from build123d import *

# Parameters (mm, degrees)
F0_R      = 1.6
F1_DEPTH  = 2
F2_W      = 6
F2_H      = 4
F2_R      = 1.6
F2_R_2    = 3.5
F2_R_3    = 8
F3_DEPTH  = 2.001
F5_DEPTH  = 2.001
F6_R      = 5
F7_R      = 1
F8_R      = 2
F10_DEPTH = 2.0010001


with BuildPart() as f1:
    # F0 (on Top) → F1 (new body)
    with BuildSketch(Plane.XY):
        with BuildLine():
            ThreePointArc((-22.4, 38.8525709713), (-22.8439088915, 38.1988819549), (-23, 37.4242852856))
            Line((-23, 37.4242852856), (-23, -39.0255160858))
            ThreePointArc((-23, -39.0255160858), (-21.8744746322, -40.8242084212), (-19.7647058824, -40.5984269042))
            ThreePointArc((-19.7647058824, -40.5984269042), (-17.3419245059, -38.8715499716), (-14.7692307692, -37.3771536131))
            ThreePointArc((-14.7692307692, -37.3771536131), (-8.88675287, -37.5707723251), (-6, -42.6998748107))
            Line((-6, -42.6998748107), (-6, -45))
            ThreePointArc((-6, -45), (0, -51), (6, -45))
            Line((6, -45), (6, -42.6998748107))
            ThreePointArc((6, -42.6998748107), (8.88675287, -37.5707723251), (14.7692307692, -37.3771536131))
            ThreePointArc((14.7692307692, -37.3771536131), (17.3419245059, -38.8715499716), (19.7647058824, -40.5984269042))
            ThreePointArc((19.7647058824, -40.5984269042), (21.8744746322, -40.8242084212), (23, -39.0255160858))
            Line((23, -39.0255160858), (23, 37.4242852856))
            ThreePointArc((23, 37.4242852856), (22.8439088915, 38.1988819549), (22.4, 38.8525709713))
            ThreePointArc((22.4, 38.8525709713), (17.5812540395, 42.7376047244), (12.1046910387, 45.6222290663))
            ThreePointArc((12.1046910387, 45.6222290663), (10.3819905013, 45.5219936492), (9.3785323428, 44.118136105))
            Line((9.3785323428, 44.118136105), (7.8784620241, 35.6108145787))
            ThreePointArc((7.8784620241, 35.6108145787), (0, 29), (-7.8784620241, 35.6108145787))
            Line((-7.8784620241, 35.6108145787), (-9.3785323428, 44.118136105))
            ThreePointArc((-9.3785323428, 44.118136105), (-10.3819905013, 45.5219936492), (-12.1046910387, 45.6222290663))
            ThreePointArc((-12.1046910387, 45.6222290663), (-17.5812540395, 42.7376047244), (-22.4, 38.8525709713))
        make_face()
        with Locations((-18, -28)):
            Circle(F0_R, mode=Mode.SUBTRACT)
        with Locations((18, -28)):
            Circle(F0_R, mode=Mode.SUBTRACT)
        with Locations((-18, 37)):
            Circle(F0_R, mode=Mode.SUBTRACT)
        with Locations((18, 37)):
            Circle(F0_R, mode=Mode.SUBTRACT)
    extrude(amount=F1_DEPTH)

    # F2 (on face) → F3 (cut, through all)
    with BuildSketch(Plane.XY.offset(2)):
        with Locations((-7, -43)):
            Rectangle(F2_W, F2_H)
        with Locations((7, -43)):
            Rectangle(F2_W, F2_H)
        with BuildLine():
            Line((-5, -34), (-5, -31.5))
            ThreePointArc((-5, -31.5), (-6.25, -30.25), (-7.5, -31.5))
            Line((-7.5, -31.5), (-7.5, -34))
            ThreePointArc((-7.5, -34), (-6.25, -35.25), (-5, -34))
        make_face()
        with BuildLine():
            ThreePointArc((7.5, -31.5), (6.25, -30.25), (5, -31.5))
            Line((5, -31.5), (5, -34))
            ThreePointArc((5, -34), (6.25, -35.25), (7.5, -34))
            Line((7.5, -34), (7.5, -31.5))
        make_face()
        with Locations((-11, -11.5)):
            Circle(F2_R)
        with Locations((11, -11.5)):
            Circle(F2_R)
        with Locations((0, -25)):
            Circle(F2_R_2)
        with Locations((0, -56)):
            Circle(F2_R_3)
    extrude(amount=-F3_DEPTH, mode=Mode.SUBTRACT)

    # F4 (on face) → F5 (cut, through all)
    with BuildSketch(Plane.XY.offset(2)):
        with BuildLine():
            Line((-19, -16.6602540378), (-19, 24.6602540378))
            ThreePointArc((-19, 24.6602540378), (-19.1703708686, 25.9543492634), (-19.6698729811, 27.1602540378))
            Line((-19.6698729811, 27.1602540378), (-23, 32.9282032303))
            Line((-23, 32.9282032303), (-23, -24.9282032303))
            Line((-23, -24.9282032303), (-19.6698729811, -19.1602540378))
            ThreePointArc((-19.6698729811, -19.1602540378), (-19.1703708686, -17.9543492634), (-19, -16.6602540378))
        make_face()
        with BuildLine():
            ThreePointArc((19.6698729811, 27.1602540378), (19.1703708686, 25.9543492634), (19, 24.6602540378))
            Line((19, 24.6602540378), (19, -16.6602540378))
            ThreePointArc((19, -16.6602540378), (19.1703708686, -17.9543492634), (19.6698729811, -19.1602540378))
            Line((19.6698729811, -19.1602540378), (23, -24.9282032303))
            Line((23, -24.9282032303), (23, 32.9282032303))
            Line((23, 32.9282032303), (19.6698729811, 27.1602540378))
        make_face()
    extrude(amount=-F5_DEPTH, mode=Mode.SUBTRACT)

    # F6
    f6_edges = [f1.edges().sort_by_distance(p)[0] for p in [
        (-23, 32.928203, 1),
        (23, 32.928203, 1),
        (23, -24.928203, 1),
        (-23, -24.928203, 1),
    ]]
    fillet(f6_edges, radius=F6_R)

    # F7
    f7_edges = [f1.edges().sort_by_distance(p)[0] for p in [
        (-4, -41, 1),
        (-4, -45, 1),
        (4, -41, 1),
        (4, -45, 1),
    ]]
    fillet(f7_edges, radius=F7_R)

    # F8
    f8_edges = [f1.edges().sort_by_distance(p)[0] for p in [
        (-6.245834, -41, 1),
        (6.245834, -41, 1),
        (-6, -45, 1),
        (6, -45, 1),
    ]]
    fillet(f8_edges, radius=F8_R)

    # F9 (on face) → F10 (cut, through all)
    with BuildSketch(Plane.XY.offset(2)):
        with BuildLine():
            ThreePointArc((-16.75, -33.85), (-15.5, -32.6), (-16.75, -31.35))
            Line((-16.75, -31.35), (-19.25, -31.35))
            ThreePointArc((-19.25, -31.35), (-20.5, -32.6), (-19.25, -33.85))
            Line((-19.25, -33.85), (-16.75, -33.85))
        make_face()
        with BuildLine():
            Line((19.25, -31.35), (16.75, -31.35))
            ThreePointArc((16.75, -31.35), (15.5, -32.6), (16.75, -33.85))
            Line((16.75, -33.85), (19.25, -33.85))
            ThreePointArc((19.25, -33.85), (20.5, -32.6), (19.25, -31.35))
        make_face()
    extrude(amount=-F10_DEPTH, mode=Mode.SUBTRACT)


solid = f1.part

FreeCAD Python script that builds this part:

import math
import FreeCAD as App
import Part
import Sketcher

V = App.Vector
Q = App.Units.Quantity


def edges_at(feature, points):
    """Names of the edges that pass closest to the given points."""
    edges = feature.Shape.Edges
    near = lambda p: min(range(len(edges)), key=lambda i: edges[i].distToShape(Part.Vertex(*p))[0])
    return sorted({f"Edge{near(p) + 1}" for p in points})

doc = App.newDocument("Part")
params = doc.addObject("Spreadsheet::Sheet", "Params")
for row, (alias, value) in enumerate([
    ("sketch1_radius", "2 mm"),
    ("sketch1_radius2", "32 mm"),
    ("sketch1_radius3", "6 mm"),
    ("sketch1_radius4", "8 mm"),
    ("sketch1_diameter", "3.2 mm"),
    ("pad1_length", "2 mm"),
    ("sketch2_diameter", "7 mm"),
    ("sketch2_diameter2", "16 mm"),
    ("sketch2_diameter3", "3.2 mm"),
    ("sketch2_width", "6 mm"),
    ("sketch2_height", "4 mm"),
    ("sketch3_radius", "5 mm"),
    ("fillet_radius", "5 mm"),
    ("fillet2_radius", "1 mm"),
    ("fillet3_radius", "2 mm"),
    ("sketch4_radius", "1.25 mm"),
    ("sketch4_width", "2.5 mm"),
], start=1):
    params.set(f"A{row}", alias)
    params.set(f"B{row}", "=" + value)
    params.setAlias(f"B{row}", alias)

body = doc.addObject("PartDesign::Body", "Body")

# Sketch on XY plane
sketch1 = body.newObject("Sketcher::SketchObject", "Sketch")
sketch1.AttachmentSupport = (doc.getObject("XY_Plane"), [""])
sketch1.MapMode = "FlatFace"
sketch1.addGeometry([
    Part.ArcOfCircle(Part.Circle(V(-21, 37.4, 0), V(0, 0, 1), 2), math.radians(134), math.radians(180)),  # 0
    Part.LineSegment(V(-23, 37.4, 0), V(-23, -39, 0)),  # 1
    Part.ArcOfCircle(Part.Circle(V(-21, -39, 0), V(0, 0, 1), 2), math.radians(180), math.radians(308)),  # 2
    Part.ArcOfCircle(Part.Circle(V(0, -65.8, 0), V(0, 0, 1), 32), math.radians(117.49), math.radians(128.14)),  # 3
    Part.ArcOfCircle(Part.Circle(V(-12, -42.7, 0), V(0, 0, 1), 6), math.radians(0), math.radians(117)),  # 4
    Part.LineSegment(V(-6, -42.7, 0), V(-6, -45, 0)),  # 5
    Part.ArcOfCircle(Part.Circle(V(0, -45, 0), V(0, 0, 1), 6), math.radians(180), math.radians(360)),  # 6
    Part.LineSegment(V(6, -45, 0), V(6, -42.7, 0)),  # 7
    Part.ArcOfCircle(Part.Circle(V(12, -42.7, 0), V(0, 0, 1), 6), math.radians(63), math.radians(180)),  # 8
    Part.ArcOfCircle(Part.Circle(V(0, -65.8, 0), V(0, 0, 1), 32), math.radians(51.86), math.radians(62.51)),  # 9
    Part.ArcOfCircle(Part.Circle(V(21, -39, 0), V(0, 0, 1), 2), math.radians(-128), math.radians(0)),  # 10
    Part.LineSegment(V(23, -39, 0), V(23, 37.4, 0)),  # 11
    Part.ArcOfCircle(Part.Circle(V(21, 37.4, 0), V(0, 0, 1), 2), math.radians(0), math.radians(46)),  # 12
    Part.ArcOfCircle(Part.Circle(V(0, 16, 0), V(0, 0, 1), 32), math.radians(46), math.radians(68)),  # 13
    Part.ArcOfCircle(Part.Circle(V(11.3, 43.8, 0), V(0, 0, 1), 2), math.radians(68), math.radians(170)),  # 14
    Part.LineSegment(V(9.4, 44.1, 0), V(7.9, 35.6, 0)),  # 15
    Part.ArcOfCircle(Part.Circle(V(0, 37, 0), V(0, 0, 1), 8), math.radians(-170), math.radians(-10)),  # 16
    Part.LineSegment(V(-7.9, 35.6, 0), V(-9.4, 44.1, 0)),  # 17
    Part.ArcOfCircle(Part.Circle(V(-11.3, 43.8, 0), V(0, 0, 1), 2), math.radians(10), math.radians(112)),  # 18
    Part.ArcOfCircle(Part.Circle(V(0, 16, 0), V(0, 0, 1), 32), math.radians(112), math.radians(134)),  # 19
    Part.Circle(V(-18, -28, 0), V(0, 0, 1), 1.6),  # 20
    Part.Circle(V(18, -28, 0), V(0, 0, 1), 1.6),  # 21
    Part.Circle(V(-18, 37, 0), V(0, 0, 1), 1.6),  # 22
    Part.Circle(V(18, 37, 0), V(0, 0, 1), 1.6),  # 23
], False)
sketch1.addConstraint([
    Sketcher.Constraint("Tangent", 0, 2, 1, 1),
    Sketcher.Constraint("Tangent", 1, 2, 2, 1),
    Sketcher.Constraint("Tangent", 2, 2, 3, 2),
    Sketcher.Constraint("Tangent", 3, 1, 4, 2),
    Sketcher.Constraint("Tangent", 4, 1, 5, 1),
    Sketcher.Constraint("Tangent", 5, 2, 6, 1),
    Sketcher.Constraint("Tangent", 6, 2, 7, 1),
    Sketcher.Constraint("Tangent", 7, 2, 8, 2),
    Sketcher.Constraint("Tangent", 8, 1, 9, 2),
    Sketcher.Constraint("Tangent", 9, 1, 10, 1),
    Sketcher.Constraint("Tangent", 10, 2, 11, 1),
    Sketcher.Constraint("Tangent", 11, 2, 12, 1),
    Sketcher.Constraint("Tangent", 12, 2, 13, 1),
    Sketcher.Constraint("Tangent", 13, 2, 14, 1),
    Sketcher.Constraint("Tangent", 14, 2, 15, 1),
    Sketcher.Constraint("Tangent", 15, 2, 16, 2),
    Sketcher.Constraint("Tangent", 16, 1, 17, 1),
    Sketcher.Constraint("Tangent", 17, 2, 18, 1),
    Sketcher.Constraint("Tangent", 18, 2, 19, 1),
    Sketcher.Constraint("Tangent", 19, 2, 0, 1),
    Sketcher.Constraint("Vertical", 1),
    Sketcher.Constraint("Vertical", 5),
    Sketcher.Constraint("Vertical", 7),
    Sketcher.Constraint("Vertical", 11),
    Sketcher.Constraint("Coincident", 9, 3, 3, 3),
    Sketcher.Constraint("Coincident", 19, 3, 13, 3),
    Sketcher.Constraint("Equal", 0, 2),
    Sketcher.Constraint("Equal", 4, 6),
    Sketcher.Constraint("Equal", 6, 8),
    Sketcher.Constraint("Equal", 3, 9),
    Sketcher.Constraint("Equal", 2, 10),
    Sketcher.Constraint("Equal", 10, 12),
    Sketcher.Constraint("Equal", 9, 13),
    Sketcher.Constraint("Equal", 12, 14),
    Sketcher.Constraint("Equal", 14, 18),
    Sketcher.Constraint("Equal", 13, 19),
    Sketcher.Constraint("Equal", 20, 21),
    Sketcher.Constraint("Equal", 21, 22),
    Sketcher.Constraint("Equal", 22, 23),
    Sketcher.Constraint("Symmetric", 4, 3, 8, 3, -2),
    Sketcher.Constraint("Symmetric", 0, 3, 12, 3, -2),
    Sketcher.Constraint("Symmetric", 20, 3, 21, 3, -2),
    Sketcher.Constraint("Symmetric", 22, 3, 23, 3, -2),
    Sketcher.Constraint("Symmetric", 15, 2, 16, 1, -2),
    Sketcher.Constraint("Horizontal", 16, 3, 22, 3),
    Sketcher.Constraint("Vertical", 20, 3, 22, 3),
    Sketcher.Constraint("Radius", 0, Q("2 mm")),
    Sketcher.Constraint("Radius", 3, Q("32 mm")),
    Sketcher.Constraint("Radius", 4, Q("6 mm")),
    Sketcher.Constraint("Radius", 16, Q("8 mm")),
    Sketcher.Constraint("Diameter", 20, Q("3.2 mm")),
    Sketcher.Constraint("Angle", 15, Q("-100 deg")),
    Sketcher.Constraint("DistanceX", 0, 3, -1, 1, Q("21 mm")),
    Sketcher.Constraint("DistanceY", 6, 3, -1, 1, Q("45 mm")),
    Sketcher.Constraint("DistanceY", -1, 1, 13, 3, Q("16 mm")),
    Sketcher.Constraint("DistanceY", -1, 1, 16, 3, Q("37 mm")),
    Sketcher.Constraint("DistanceX", 20, 3, -1, 1, Q("18 mm")),
    Sketcher.Constraint("DistanceY", 20, 3, -1, 1, Q("28 mm")),
    Sketcher.Constraint("DistanceY", 1, 2, 1, 1, Q("76.449801 mm")),
])
sketch1.setExpression("Constraints[46]", "Params.sketch1_radius")
sketch1.setExpression("Constraints[47]", "Params.sketch1_radius2")
sketch1.setExpression("Constraints[48]", "Params.sketch1_radius3")
sketch1.setExpression("Constraints[49]", "Params.sketch1_radius4")
sketch1.setExpression("Constraints[50]", "Params.sketch1_diameter")
pad1 = body.newObject("PartDesign::Pad", "Pad")
pad1.Profile = sketch1
pad1.setExpression("Length", "Params.pad1_length")

# Sketch on XY plane
sketch2 = body.newObject("Sketcher::SketchObject", "Sketch001")
sketch2.AttachmentSupport = (doc.getObject("XY_Plane"), [""])
sketch2.MapMode = "FlatFace"
sketch2.AttachmentOffset = App.Placement(V(0, 0, 2), App.Rotation())
sketch2.addGeometry([
    Part.LineSegment(V(-10, -41, 0), V(-10, -45, 0)),  # 0
    Part.LineSegment(V(-10, -45, 0), V(-4, -45, 0)),  # 1
    Part.LineSegment(V(-4, -45, 0), V(-4, -41, 0)),  # 2
    Part.LineSegment(V(-4, -41, 0), V(-10, -41, 0)),  # 3
    Part.LineSegment(V(4, -41, 0), V(4, -45, 0)),  # 4
    Part.LineSegment(V(4, -45, 0), V(10, -45, 0)),  # 5
    Part.LineSegment(V(10, -45, 0), V(10, -41, 0)),  # 6
    Part.LineSegment(V(10, -41, 0), V(4, -41, 0)),  # 7
    Part.LineSegment(V(-5, -34, 0), V(-5, -31.5, 0)),  # 8
    Part.ArcOfCircle(Part.Circle(V(-6.2, -31.5, 0), V(0, 0, 1), 1.2), math.radians(0), math.radians(180)),  # 9
    Part.LineSegment(V(-7.5, -31.5, 0), V(-7.5, -34, 0)),  # 10
    Part.ArcOfCircle(Part.Circle(V(-6.2, -34, 0), V(0, 0, 1), 1.2), math.radians(180), math.radians(360)),  # 11
    Part.ArcOfCircle(Part.Circle(V(6.2, -31.5, 0), V(0, 0, 1), 1.2), math.radians(0), math.radians(180)),  # 12
    Part.LineSegment(V(5, -31.5, 0), V(5, -34, 0)),  # 13
    Part.ArcOfCircle(Part.Circle(V(6.2, -34, 0), V(0, 0, 1), 1.2), math.radians(180), math.radians(360)),  # 14
    Part.LineSegment(V(7.5, -34, 0), V(7.5, -31.5, 0)),  # 15
    Part.Circle(V(-11, -11.5, 0), V(0, 0, 1), 1.6),  # 16
    Part.Circle(V(11, -11.5, 0), V(0, 0, 1), 1.6),  # 17
    Part.Circle(V(0, -25, 0), V(0, 0, 1), 3.5),  # 18
    Part.Circle(V(0, -56, 0), V(0, 0, 1), 8),  # 19
], False)
sketch2.addConstraint([
    Sketcher.Constraint("Coincident", 0, 2, 1, 1),
    Sketcher.Constraint("Coincident", 1, 2, 2, 1),
    Sketcher.Constraint("Coincident", 2, 2, 3, 1),
    Sketcher.Constraint("Coincident", 3, 2, 0, 1),
    Sketcher.Constraint("Coincident", 4, 2, 5, 1),
    Sketcher.Constraint("Coincident", 5, 2, 6, 1),
    Sketcher.Constraint("Coincident", 6, 2, 7, 1),
    Sketcher.Constraint("Coincident", 7, 2, 4, 1),
    Sketcher.Constraint("Tangent", 8, 2, 9, 1),
    Sketcher.Constraint("Tangent", 9, 2, 10, 1),
    Sketcher.Constraint("Tangent", 10, 2, 11, 1),
    Sketcher.Constraint("Tangent", 11, 2, 8, 1),
    Sketcher.Constraint("Tangent", 12, 2, 13, 1),
    Sketcher.Constraint("Tangent", 13, 2, 14, 1),
    Sketcher.Constraint("Tangent", 14, 2, 15, 1),
    Sketcher.Constraint("Tangent", 15, 2, 12, 1),
    Sketcher.Constraint("Vertical", 0),
    Sketcher.Constraint("Horizontal", 1),
    Sketcher.Constraint("Vertical", 2),
    Sketcher.Constraint("Horizontal", 3),
    Sketcher.Constraint("Vertical", 4),
    Sketcher.Constraint("Horizontal", 5),
    Sketcher.Constraint("Vertical", 6),
    Sketcher.Constraint("Horizontal", 7),
    Sketcher.Constraint("Vertical", 8),
    Sketcher.Constraint("Vertical", 10),
    Sketcher.Constraint("Vertical", 13),
    Sketcher.Constraint("Vertical", 15),
    Sketcher.Constraint("Equal", 11, 12),
    Sketcher.Constraint("Equal", 16, 17),
    Sketcher.Constraint("Symmetric", 9, 3, 12, 3, -2),
    Sketcher.Constraint("Symmetric", 16, 3, 17, 3, -2),
    Sketcher.Constraint("Symmetric", 1, 2, 4, 2, -2),
    Sketcher.Constraint("Symmetric", 3, 2, 6, 2, -2),
    Sketcher.Constraint("PointOnObject", 18, 3, -2),
    Sketcher.Constraint("PointOnObject", 19, 3, -2),
    Sketcher.Constraint("Horizontal", 11, 3, 14, 3),
    Sketcher.Constraint("Diameter", 18, Q("7 mm")),
    Sketcher.Constraint("Diameter", 19, Q("16 mm")),
    Sketcher.Constraint("Diameter", 16, Q("3.2 mm")),
    Sketcher.Constraint("DistanceX", 1, 1, 1, 2, Q("6 mm")),
    Sketcher.Constraint("DistanceY", 0, 2, 0, 1, Q("4 mm")),
    Sketcher.Constraint("Radius", 9, Q("1.25 mm")),
    Sketcher.Constraint("DistanceY", 8, 1, 8, 2, Q("2.5 mm")),
    Sketcher.Constraint("DistanceY", 11, 3, -1, 1, Q("34 mm")),
    Sketcher.Constraint("DistanceX", 16, 3, -1, 1, Q("11 mm")),
    Sketcher.Constraint("DistanceY", 18, 3, -1, 1, Q("25 mm")),
    Sketcher.Constraint("DistanceY", 19, 3, -1, 1, Q("56 mm")),
    Sketcher.Constraint("DistanceX", 0, 2, -1, 1, Q("10 mm")),
    Sketcher.Constraint("DistanceY", 0, 2, -1, 1, Q("45 mm")),
    Sketcher.Constraint("DistanceX", 8, 2, -1, 1, Q("5 mm")),
    Sketcher.Constraint("DistanceY", 9, 3, 16, 3, Q("20 mm")),
])
sketch2.setExpression("Constraints[37]", "Params.sketch2_diameter")
sketch2.setExpression("Constraints[38]", "Params.sketch2_diameter2")
sketch2.setExpression("Constraints[39]", "Params.sketch2_diameter3")
sketch2.setExpression("Constraints[40]", "Params.sketch2_width")
sketch2.setExpression("Constraints[41]", "Params.sketch2_height")
pocket1 = body.newObject("PartDesign::Pocket", "Pocket")
pocket1.Profile = sketch2
pocket1.Type = "ThroughAll"

# Sketch on XY plane
sketch3 = body.newObject("Sketcher::SketchObject", "Sketch002")
sketch3.AttachmentSupport = (doc.getObject("XY_Plane"), [""])
sketch3.MapMode = "FlatFace"
sketch3.AttachmentOffset = App.Placement(V(0, 0, 2), App.Rotation())
sketch3.addGeometry([
    Part.LineSegment(V(-19, -16.7, 0), V(-19, 24.7, 0)),  # 0
    Part.ArcOfCircle(Part.Circle(V(-24, 24.7, 0), V(0, 0, 1), 5), math.radians(0), math.radians(30)),  # 1
    Part.LineSegment(V(-19.7, 27.2, 0), V(-23, 32.9, 0)),  # 2
    Part.LineSegment(V(-23, 32.9, 0), V(-23, -24.9, 0)),  # 3
    Part.LineSegment(V(-23, -24.9, 0), V(-19.7, -19.2, 0)),  # 4
    Part.ArcOfCircle(Part.Circle(V(-24, -16.7, 0), V(0, 0, 1), 5), math.radians(-30), math.radians(0)),  # 5
    Part.ArcOfCircle(Part.Circle(V(24, 24.7, 0), V(0, 0, 1), 5), math.radians(150), math.radians(180)),  # 6
    Part.LineSegment(V(19, 24.7, 0), V(19, -16.7, 0)),  # 7
    Part.ArcOfCircle(Part.Circle(V(24, -16.7, 0), V(0, 0, 1), 5), math.radians(180), math.radians(210)),  # 8
    Part.LineSegment(V(19.7, -19.2, 0), V(23, -24.9, 0)),  # 9
    Part.LineSegment(V(23, -24.9, 0), V(23, 32.9, 0)),  # 10
    Part.LineSegment(V(23, 32.9, 0), V(19.7, 27.2, 0)),  # 11
], False)
sketch3.addConstraint([
    Sketcher.Constraint("Tangent", 0, 2, 1, 1),
    Sketcher.Constraint("Tangent", 1, 2, 2, 1),
    Sketcher.Constraint("Coincident", 2, 2, 3, 1),
    Sketcher.Constraint("Coincident", 3, 2, 4, 1),
    Sketcher.Constraint("Tangent", 4, 2, 5, 1),
    Sketcher.Constraint("Tangent", 5, 2, 0, 1),
    Sketcher.Constraint("Tangent", 6, 2, 7, 1),
    Sketcher.Constraint("Tangent", 7, 2, 8, 1),
    Sketcher.Constraint("Tangent", 8, 2, 9, 1),
    Sketcher.Constraint("Coincident", 9, 2, 10, 1),
    Sketcher.Constraint("Coincident", 10, 2, 11, 1),
    Sketcher.Constraint("Tangent", 11, 2, 6, 1),
    Sketcher.Constraint("Vertical", 0),
    Sketcher.Constraint("Vertical", 3),
    Sketcher.Constraint("Vertical", 7),
    Sketcher.Constraint("Vertical", 10),
    Sketcher.Constraint("Equal", 1, 5),
    Sketcher.Constraint("Equal", 5, 6),
    Sketcher.Constraint("Equal", 6, 8),
    Sketcher.Constraint("Symmetric", 1, 3, 6, 3, -2),
    Sketcher.Constraint("Symmetric", 4, 2, 8, 2, -2),
    Sketcher.Constraint("Symmetric", 2, 2, 10, 2, -2),
    Sketcher.Constraint("Parallel", 2, 9),
    Sketcher.Constraint("Radius", 1, Q("5 mm")),
    Sketcher.Constraint("Angle", 2, Q("120 deg")),
    Sketcher.Constraint("DistanceX", 1, 3, -1, 1, Q("24 mm")),
    Sketcher.Constraint("DistanceX", 2, 2, -1, 1, Q("23 mm")),
    Sketcher.Constraint("DistanceY", 0, 1, 0, 2, Q("41.320508 mm")),
    Sketcher.Constraint("DistanceY", -1, 1, 1, 3, Q("24.660254 mm")),
])
sketch3.setExpression("Constraints[23]", "Params.sketch3_radius")
pocket2 = body.newObject("PartDesign::Pocket", "Pocket001")
pocket2.Profile = sketch3
pocket2.Type = "ThroughAll"
doc.recompute()

fillet = body.newObject("PartDesign::Fillet", "Fillet")
fillet.Base = (pocket2, edges_at(pocket2, [
    (-23, 32.928, 1),
    (23, 32.928, 1),
    (23, -24.928, 1),
    (-23, -24.928, 1),
]))
fillet.setExpression("Radius", "Params.fillet_radius")
doc.recompute()

fillet2 = body.newObject("PartDesign::Fillet", "Fillet001")
fillet2.Base = (fillet, edges_at(fillet, [
    (-4, -41, 1),
    (-4, -45, 1),
    (4, -41, 1),
    (4, -45, 1),
]))
fillet2.setExpression("Radius", "Params.fillet2_radius")
doc.recompute()

fillet3 = body.newObject("PartDesign::Fillet", "Fillet002")
fillet3.Base = (fillet2, edges_at(fillet2, [
    (-6.246, -41, 1),
    (6.246, -41, 1),
    (-6, -45, 1),
    (6, -45, 1),
]))
fillet3.setExpression("Radius", "Params.fillet3_radius")

# Sketch on XY plane
sketch4 = body.newObject("Sketcher::SketchObject", "Sketch003")
sketch4.AttachmentSupport = (doc.getObject("XY_Plane"), [""])
sketch4.MapMode = "FlatFace"
sketch4.AttachmentOffset = App.Placement(V(0, 0, 2), App.Rotation())
sketch4.addGeometry([
    Part.ArcOfCircle(Part.Circle(V(-16.8, -32.6, 0), V(0, 0, 1), 1.2), math.radians(-90), math.radians(90)),  # 0
    Part.LineSegment(V(-16.8, -31.4, 0), V(-19.2, -31.4, 0)),  # 1
    Part.ArcOfCircle(Part.Circle(V(-19.2, -32.6, 0), V(0, 0, 1), 1.2), math.radians(90), math.radians(270)),  # 2
    Part.LineSegment(V(-19.2, -33.9, 0), V(-16.8, -33.9, 0)),  # 3
    Part.LineSegment(V(19.2, -31.4, 0), V(16.8, -31.4, 0)),  # 4
    Part.ArcOfCircle(Part.Circle(V(16.8, -32.6, 0), V(0, 0, 1), 1.2), math.radians(90), math.radians(270)),  # 5
    Part.LineSegment(V(16.8, -33.9, 0), V(19.2, -33.9, 0)),  # 6
    Part.ArcOfCircle(Part.Circle(V(19.2, -32.6, 0), V(0, 0, 1), 1.2), math.radians(-90), math.radians(90)),  # 7
], False)
sketch4.addConstraint([
    Sketcher.Constraint("Tangent", 0, 2, 1, 1),
    Sketcher.Constraint("Tangent", 1, 2, 2, 1),
    Sketcher.Constraint("Tangent", 2, 2, 3, 1),
    Sketcher.Constraint("Tangent", 3, 2, 0, 1),
    Sketcher.Constraint("Tangent", 4, 2, 5, 1),
    Sketcher.Constraint("Tangent", 5, 2, 6, 1),
    Sketcher.Constraint("Tangent", 6, 2, 7, 1),
    Sketcher.Constraint("Tangent", 7, 2, 4, 1),
    Sketcher.Constraint("Horizontal", 1),
    Sketcher.Constraint("Horizontal", 3),
    Sketcher.Constraint("Horizontal", 4),
    Sketcher.Constraint("Horizontal", 6),
    Sketcher.Constraint("Equal", 2, 5),
    Sketcher.Constraint("Symmetric", 0, 3, 5, 3, -2),
    Sketcher.Constraint("Equal", 3, 4),
    Sketcher.Constraint("Radius", 0, Q("1.25 mm")),
    Sketcher.Constraint("DistanceX", 1, 2, 1, 1, Q("2.5 mm")),
    Sketcher.Constraint("DistanceX", 2, 3, 5, 3, Q("36 mm")),
    Sketcher.Constraint("DistanceY", 0, 3, -1, 1, Q("32.6 mm")),
])
sketch4.setExpression("Constraints[15]", "Params.sketch4_radius")
sketch4.setExpression("Constraints[16]", "Params.sketch4_width")
pocket3 = body.newObject("PartDesign::Pocket", "Pocket002")
pocket3.Profile = sketch4
pocket3.Type = "ThroughAll"

doc.recompute()
